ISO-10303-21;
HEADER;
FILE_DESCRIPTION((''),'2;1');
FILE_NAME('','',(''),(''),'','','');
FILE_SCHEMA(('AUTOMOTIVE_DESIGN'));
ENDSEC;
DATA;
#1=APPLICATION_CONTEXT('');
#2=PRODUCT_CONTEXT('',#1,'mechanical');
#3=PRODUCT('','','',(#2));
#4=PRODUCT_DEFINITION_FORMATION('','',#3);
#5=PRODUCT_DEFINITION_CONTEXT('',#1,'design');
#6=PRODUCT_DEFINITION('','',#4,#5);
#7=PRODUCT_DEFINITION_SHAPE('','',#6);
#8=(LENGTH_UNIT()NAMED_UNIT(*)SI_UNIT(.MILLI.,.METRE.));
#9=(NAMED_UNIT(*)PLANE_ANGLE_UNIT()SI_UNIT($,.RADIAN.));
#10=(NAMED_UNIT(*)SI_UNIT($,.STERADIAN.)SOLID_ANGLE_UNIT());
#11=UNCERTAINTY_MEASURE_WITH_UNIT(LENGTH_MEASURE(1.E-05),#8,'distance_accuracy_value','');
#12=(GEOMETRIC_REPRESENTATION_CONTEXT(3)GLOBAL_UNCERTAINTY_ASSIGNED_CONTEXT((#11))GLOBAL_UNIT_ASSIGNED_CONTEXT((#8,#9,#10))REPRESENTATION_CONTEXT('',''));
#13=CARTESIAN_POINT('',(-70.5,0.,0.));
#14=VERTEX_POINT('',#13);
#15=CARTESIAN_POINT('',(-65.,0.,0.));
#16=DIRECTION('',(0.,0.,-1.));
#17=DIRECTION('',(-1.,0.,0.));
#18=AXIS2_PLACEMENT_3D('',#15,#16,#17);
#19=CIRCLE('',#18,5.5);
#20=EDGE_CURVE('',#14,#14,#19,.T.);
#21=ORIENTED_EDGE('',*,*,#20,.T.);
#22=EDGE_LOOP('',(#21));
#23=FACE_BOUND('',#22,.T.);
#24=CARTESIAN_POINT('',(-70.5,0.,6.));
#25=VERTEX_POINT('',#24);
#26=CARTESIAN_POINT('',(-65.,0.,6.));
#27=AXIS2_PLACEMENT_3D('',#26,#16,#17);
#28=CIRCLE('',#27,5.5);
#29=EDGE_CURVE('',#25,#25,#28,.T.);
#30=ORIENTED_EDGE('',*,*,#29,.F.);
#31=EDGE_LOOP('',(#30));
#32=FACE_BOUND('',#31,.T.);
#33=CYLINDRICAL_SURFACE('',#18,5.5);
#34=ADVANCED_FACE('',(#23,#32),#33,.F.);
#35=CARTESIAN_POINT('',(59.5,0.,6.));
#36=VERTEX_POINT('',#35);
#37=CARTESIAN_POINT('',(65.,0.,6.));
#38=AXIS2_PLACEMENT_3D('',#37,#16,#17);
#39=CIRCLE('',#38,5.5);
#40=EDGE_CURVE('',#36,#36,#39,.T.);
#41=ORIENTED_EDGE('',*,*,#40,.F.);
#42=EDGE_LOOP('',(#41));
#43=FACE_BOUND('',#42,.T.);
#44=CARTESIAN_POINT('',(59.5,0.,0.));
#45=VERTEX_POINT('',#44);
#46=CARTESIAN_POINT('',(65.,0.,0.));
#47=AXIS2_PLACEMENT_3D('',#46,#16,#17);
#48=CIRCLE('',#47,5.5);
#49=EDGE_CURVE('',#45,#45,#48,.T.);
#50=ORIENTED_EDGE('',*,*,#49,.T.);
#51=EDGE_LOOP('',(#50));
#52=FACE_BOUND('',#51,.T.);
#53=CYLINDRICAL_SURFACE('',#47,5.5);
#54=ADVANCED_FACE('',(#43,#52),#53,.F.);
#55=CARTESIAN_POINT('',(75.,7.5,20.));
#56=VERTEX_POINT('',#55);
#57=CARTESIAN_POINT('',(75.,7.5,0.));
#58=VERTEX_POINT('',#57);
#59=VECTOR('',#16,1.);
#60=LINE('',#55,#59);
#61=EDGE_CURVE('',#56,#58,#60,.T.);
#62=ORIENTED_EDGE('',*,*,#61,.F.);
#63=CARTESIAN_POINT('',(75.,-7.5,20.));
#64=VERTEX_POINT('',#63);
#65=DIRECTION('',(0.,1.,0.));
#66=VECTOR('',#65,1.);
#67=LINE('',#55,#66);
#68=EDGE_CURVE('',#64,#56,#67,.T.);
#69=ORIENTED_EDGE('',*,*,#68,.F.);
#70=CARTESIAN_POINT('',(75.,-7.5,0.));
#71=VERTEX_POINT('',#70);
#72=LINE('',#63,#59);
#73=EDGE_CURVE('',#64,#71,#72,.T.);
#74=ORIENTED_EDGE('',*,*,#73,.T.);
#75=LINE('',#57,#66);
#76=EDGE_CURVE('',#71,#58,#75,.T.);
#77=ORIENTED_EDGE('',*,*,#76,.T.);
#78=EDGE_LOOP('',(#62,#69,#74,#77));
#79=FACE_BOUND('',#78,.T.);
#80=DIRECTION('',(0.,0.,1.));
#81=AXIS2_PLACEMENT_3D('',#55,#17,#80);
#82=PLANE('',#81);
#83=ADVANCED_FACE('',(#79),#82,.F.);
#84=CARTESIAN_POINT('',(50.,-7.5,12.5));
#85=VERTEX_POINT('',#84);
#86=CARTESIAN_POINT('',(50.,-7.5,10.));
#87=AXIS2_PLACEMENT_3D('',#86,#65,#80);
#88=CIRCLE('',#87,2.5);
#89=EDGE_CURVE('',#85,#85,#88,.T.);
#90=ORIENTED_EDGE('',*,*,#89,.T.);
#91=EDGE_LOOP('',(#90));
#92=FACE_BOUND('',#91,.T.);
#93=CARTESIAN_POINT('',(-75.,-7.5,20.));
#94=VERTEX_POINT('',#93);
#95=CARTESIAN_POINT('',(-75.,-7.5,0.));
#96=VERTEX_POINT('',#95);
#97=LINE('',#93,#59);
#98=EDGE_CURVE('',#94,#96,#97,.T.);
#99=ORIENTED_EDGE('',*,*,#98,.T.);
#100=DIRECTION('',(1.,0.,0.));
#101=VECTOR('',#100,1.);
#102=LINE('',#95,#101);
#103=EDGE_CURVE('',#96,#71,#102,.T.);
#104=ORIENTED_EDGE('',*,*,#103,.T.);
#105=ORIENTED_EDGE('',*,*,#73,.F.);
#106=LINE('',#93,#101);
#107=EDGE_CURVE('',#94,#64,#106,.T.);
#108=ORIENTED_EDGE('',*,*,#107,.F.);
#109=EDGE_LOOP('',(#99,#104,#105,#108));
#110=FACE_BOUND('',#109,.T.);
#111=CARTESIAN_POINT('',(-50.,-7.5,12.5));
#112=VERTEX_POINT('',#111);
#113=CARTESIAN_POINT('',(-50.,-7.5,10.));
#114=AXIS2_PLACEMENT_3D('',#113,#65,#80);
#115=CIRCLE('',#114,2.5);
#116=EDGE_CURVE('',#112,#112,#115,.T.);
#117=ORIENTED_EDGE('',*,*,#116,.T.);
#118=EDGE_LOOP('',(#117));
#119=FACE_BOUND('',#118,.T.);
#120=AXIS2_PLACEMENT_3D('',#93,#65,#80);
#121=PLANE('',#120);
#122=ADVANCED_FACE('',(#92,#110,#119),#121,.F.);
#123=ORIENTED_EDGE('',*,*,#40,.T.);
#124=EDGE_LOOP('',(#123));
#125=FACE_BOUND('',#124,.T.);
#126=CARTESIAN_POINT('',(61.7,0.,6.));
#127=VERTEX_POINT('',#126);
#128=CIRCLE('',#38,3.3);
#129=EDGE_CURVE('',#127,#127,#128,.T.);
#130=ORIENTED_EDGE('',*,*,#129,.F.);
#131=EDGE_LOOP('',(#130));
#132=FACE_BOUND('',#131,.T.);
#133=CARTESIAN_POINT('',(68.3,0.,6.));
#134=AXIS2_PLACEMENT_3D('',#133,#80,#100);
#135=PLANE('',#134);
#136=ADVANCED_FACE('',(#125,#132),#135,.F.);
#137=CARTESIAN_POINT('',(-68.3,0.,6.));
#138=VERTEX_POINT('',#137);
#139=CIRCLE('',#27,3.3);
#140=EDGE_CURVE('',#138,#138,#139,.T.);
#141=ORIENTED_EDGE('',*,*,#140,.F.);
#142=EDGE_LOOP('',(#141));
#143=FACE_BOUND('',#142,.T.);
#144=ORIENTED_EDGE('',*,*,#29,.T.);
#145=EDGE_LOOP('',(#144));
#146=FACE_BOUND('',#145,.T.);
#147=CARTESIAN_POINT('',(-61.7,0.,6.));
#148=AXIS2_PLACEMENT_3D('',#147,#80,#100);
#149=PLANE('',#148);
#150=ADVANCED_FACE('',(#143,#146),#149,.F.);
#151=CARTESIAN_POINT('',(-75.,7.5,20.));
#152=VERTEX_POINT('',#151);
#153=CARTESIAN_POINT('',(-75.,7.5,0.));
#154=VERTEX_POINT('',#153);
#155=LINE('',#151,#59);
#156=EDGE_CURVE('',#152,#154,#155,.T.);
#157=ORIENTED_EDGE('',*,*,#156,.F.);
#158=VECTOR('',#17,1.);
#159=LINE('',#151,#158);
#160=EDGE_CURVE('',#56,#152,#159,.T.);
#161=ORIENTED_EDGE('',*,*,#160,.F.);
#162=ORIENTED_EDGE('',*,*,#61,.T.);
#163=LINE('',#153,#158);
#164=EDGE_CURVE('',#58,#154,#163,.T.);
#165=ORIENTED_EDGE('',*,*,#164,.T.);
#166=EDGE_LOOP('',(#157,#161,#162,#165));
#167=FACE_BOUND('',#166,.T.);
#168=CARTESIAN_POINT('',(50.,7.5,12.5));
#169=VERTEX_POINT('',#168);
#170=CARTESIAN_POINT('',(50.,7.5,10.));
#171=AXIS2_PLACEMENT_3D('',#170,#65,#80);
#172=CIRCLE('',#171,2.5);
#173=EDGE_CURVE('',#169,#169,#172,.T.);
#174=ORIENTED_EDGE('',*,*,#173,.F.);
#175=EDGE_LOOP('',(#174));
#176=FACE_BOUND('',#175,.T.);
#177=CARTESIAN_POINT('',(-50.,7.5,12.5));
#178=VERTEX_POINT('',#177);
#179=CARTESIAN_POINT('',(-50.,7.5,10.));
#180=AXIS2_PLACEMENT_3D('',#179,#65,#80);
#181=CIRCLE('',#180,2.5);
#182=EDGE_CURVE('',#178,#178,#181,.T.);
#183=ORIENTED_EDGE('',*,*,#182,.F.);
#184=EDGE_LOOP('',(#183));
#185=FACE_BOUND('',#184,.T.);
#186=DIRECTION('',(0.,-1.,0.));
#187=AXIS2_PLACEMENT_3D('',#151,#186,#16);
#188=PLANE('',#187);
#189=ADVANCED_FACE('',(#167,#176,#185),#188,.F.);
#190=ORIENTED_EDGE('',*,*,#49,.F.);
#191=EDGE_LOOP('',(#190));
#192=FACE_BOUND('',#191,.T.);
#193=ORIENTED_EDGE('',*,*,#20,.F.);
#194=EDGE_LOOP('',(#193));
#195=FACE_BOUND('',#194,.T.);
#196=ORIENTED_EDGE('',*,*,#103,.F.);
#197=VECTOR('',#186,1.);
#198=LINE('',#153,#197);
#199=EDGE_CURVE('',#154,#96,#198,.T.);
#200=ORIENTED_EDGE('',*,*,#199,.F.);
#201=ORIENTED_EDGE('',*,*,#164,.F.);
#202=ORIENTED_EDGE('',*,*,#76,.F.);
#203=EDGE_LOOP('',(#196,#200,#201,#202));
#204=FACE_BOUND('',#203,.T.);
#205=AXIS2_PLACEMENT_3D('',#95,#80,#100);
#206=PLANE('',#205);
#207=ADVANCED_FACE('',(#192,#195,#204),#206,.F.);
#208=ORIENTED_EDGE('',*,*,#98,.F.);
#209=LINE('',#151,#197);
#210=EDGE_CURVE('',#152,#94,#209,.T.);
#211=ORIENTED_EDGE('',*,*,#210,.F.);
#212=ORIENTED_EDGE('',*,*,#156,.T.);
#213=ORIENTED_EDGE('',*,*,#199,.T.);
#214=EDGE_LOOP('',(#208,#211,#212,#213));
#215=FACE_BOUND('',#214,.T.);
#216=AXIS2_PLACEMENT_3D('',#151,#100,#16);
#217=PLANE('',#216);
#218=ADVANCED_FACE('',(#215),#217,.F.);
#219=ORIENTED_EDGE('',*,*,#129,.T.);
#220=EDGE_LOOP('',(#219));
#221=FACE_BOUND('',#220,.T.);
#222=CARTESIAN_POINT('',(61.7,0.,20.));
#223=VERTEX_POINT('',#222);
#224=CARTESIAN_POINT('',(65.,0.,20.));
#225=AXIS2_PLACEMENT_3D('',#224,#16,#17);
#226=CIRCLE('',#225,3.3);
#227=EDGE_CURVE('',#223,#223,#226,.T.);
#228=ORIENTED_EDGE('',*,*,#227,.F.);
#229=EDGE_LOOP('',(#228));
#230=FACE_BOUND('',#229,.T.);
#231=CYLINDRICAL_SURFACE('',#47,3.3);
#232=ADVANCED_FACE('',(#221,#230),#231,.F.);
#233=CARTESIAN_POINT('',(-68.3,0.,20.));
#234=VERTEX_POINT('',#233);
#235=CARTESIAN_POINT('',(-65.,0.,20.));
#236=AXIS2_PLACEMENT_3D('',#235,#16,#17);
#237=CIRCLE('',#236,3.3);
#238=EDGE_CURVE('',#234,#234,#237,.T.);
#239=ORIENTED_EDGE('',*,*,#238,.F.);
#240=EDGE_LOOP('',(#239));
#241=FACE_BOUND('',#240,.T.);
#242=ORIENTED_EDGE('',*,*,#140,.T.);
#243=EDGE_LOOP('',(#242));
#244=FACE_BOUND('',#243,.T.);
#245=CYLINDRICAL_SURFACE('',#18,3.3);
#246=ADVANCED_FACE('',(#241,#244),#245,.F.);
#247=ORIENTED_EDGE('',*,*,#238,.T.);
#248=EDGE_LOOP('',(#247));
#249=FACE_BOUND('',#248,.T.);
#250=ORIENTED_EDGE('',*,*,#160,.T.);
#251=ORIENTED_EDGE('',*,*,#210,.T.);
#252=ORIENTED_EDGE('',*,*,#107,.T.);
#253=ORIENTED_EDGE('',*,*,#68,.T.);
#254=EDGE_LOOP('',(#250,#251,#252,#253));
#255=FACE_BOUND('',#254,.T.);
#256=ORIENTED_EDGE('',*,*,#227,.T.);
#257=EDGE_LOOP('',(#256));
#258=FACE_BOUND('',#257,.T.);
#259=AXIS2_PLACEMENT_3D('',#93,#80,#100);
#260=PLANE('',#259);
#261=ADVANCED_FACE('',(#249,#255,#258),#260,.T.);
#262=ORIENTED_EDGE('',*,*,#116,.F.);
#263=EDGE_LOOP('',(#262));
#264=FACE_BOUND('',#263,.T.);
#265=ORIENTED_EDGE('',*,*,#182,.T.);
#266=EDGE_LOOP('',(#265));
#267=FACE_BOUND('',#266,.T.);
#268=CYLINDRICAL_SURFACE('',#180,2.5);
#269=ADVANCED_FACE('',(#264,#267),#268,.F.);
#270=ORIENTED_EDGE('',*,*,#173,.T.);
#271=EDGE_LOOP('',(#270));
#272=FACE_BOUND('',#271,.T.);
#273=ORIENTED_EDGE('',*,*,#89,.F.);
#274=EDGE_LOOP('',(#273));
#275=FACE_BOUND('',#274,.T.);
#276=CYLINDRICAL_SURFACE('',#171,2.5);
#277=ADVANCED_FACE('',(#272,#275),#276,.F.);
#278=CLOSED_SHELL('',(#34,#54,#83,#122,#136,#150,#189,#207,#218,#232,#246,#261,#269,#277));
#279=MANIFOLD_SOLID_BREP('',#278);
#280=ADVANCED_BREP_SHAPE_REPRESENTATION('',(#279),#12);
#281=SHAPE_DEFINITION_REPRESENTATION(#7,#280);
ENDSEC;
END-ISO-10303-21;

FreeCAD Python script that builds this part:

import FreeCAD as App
import Part
import Sketcher

V = App.Vector


def add_polygon(sketch, points):
    """Adds a closed chain of lines whose ends are joined by coincident constraints."""
    first, n = sketch.GeometryCount, len(points)
    for a, b in zip(points, points[1:] + points[:1]):
        sketch.addGeometry(Part.LineSegment(App.Vector(*a, 0), App.Vector(*b, 0)), False)
    for i in range(n):
        sketch.addConstraint(Sketcher.Constraint("Coincident", first + i, 2, first + (i + 1) % n, 1))

doc = App.newDocument("Part")
body = doc.addObject("PartDesign::Body", "Body")

# Sketch on XY plane
sketch1 = body.newObject("Sketcher::SketchObject", "Sketch")
sketch1.AttachmentSupport = (doc.getObject("XY_Plane"), [""])
sketch1.MapMode = "FlatFace"
add_polygon(sketch1, [(-75, 7.5), (-75, -7.5), (75, -7.5), (75, 7.5)])  # lines 0-3
sketch1.addConstraint([
    Sketcher.Constraint("Vertical", 0),
    Sketcher.Constraint("Horizontal", 1),
    Sketcher.Constraint("Vertical", 2),
    Sketcher.Constraint("Horizontal", 3),
    Sketcher.Constraint("Symmetric", 0, 2, 2, 2, -1, 1),
    Sketcher.Constraint("DistanceX", 1, 1, 1, 2, 150.0),
    Sketcher.Constraint("DistanceY", 0, 2, 0, 1, 15.0),
])
pad1 = body.newObject("PartDesign::Pad", "Pad")
pad1.Profile = sketch1
pad1.Length = 20

# Sketch on XZ plane
sketch2 = body.newObject("Sketcher::SketchObject", "Sketch001")
sketch2.AttachmentSupport = (doc.getObject("XZ_Plane"), [""])
sketch2.MapMode = "FlatFace"
sketch2.AttachmentOffset = App.Placement(V(0, 0, -7.5), App.Rotation())
sketch2.addGeometry([
    Part.Circle(V(-50, 10, 0), V(0, 0, 1), 2.5),
    Part.Circle(V(50, 10, 0), V(0, 0, 1), 2.5),
], False)
sketch2.addConstraint([
    Sketcher.Constraint("Equal", 0, 1),
    Sketcher.Constraint("Symmetric", 0, 3, 1, 3, -2),
    Sketcher.Constraint("Diameter", 0, 5.0),
    Sketcher.Constraint("DistanceX", 0, 3, -1, 1, 50.0),
    Sketcher.Constraint("DistanceY", -1, 1, 0, 3, 10.0),
])
doc.recompute()
hole = body.newObject("PartDesign::Hole", "Hole")
hole.Profile = sketch2
hole.ThreadType = "None"
hole.Diameter = 5
hole.DepthType = "ThroughAll"
hole.Reversed = True

# Sketch on XY plane
sketch3 = body.newObject("Sketcher::SketchObject", "Sketch002")
sketch3.AttachmentSupport = (doc.getObject("XY_Plane"), [""])
sketch3.MapMode = "FlatFace"
sketch3.addGeometry([
    Part.Circle(V(-65, 0, 0), V(0, 0, 1), 3.3),
    Part.Circle(V(65, 0, 0), V(0, 0, 1), 3.3),
], False)
sketch3.addConstraint([
    Sketcher.Constraint("Equal", 0, 1),
    Sketcher.Constraint("Symmetric", 0, 3, 1, 3, -1, 1),
    Sketcher.Constraint("PointOnObject", 0, 3, -1),
    Sketcher.Constraint("Diameter", 0, 6.6),
    Sketcher.Constraint("DistanceX", 0, 3, -1, 1, 65.0),
])
doc.recompute()
hole2 = body.newObject("PartDesign::Hole", "Hole001")
hole2.Profile = sketch3
hole2.ThreadType = "None"
hole2.Diameter = 6.6
hole2.DepthType = "ThroughAll"
hole2.HoleCutType = "Counterbore"
hole2.HoleCutDiameter = 11
hole2.HoleCutDepth = 6
hole2.Reversed = True

doc.recompute()
